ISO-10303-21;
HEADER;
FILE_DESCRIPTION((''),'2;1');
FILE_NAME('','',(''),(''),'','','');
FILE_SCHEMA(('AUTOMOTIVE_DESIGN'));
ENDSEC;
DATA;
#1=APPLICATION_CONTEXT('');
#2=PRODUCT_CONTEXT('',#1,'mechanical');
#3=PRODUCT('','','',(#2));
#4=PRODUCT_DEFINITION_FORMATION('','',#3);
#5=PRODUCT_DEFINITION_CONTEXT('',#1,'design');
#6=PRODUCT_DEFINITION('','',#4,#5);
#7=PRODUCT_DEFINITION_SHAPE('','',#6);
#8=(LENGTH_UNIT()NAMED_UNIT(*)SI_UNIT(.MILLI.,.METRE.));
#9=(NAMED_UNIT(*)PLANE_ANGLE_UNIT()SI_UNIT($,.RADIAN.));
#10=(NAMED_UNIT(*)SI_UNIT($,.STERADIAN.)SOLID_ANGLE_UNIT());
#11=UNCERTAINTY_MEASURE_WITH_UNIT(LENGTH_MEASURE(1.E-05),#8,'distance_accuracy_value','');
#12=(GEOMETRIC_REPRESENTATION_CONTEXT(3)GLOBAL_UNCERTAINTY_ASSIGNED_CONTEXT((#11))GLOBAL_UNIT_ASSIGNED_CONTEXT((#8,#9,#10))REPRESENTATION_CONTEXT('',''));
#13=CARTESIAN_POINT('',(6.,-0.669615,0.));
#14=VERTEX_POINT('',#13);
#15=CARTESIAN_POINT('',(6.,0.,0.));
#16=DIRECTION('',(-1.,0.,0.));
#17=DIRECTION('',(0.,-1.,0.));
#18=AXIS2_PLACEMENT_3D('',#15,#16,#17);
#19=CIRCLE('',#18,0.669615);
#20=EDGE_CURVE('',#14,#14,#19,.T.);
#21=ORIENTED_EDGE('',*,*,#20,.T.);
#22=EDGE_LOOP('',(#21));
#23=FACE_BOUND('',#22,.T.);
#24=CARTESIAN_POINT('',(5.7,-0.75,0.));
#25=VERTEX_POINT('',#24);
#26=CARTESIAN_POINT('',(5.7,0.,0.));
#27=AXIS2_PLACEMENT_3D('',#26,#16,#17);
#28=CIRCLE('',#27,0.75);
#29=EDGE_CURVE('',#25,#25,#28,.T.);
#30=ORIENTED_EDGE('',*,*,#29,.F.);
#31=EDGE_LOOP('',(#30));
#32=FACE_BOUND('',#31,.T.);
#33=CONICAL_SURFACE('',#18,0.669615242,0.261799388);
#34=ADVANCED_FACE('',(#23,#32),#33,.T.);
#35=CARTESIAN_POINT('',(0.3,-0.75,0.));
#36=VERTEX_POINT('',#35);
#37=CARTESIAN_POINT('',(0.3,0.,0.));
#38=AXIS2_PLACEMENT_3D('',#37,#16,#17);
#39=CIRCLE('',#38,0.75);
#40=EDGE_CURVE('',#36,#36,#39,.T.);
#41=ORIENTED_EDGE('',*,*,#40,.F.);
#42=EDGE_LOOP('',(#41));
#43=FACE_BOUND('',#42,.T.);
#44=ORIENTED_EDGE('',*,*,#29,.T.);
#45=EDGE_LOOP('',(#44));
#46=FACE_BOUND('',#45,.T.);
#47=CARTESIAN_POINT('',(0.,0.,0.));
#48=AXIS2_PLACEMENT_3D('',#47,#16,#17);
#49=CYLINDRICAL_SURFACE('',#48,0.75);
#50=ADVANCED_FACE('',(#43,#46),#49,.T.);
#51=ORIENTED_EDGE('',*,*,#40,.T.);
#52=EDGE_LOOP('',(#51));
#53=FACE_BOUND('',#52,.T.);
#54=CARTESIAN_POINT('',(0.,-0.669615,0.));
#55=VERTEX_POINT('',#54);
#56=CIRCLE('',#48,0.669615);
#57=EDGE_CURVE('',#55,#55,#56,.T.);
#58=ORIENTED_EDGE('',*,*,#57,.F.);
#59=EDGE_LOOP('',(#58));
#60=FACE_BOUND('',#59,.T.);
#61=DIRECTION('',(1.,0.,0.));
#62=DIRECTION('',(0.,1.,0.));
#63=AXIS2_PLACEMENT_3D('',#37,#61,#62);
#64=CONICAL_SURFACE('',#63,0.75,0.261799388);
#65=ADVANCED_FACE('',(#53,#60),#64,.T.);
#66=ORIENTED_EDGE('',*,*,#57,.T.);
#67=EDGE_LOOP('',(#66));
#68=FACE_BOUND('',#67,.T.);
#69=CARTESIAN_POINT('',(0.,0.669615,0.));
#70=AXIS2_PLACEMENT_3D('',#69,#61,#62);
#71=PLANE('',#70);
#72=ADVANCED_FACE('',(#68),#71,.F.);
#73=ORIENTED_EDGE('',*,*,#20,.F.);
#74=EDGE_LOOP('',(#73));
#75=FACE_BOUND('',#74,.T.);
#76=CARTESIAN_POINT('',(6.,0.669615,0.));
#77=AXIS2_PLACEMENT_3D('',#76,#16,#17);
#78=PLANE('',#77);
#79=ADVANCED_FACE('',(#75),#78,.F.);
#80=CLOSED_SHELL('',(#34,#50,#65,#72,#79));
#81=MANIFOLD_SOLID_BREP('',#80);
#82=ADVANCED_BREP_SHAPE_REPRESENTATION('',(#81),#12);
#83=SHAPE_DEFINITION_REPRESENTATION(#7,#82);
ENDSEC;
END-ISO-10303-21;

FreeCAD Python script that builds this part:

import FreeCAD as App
import Part
import Sketcher
Q = App.Units.Quantity


def add_polygon(sketch, points):
    """Adds a closed chain of lines whose ends are joined by coincident constraints."""
    first, n = sketch.GeometryCount, len(points)
    for a, b in zip(points, points[1:] + points[:1]):
        sketch.addGeometry(Part.LineSegment(App.Vector(*a, 0), App.Vector(*b, 0)), False)
    for i in range(n):
        sketch.addConstraint(Sketcher.Constraint("Coincident", first + i, 2, first + (i + 1) % n, 1))

doc = App.newDocument("Part")
params = doc.addObject("Spreadsheet::Sheet", "Params")
for row, (alias, value) in enumerate([
    ("sketch1_width", "6 mm"),
    ("sketch1_width2", "5.4 mm"),
    ("revolution_angle", "360 deg"),
], start=1):
    params.set(f"A{row}", alias)
    params.set(f"B{row}", "=" + value)
    params.setAlias(f"B{row}", alias)

body = doc.addObject("PartDesign::Body", "Body")

sketch1 = body.newObject("Sketcher::SketchObject", "Sketch")
sketch1.AttachmentSupport = (doc.getObject("XY_Plane"), [""])
sketch1.MapMode = "FlatFace"
add_polygon(sketch1, [(6, 0), (6, 0.669615), (5.7, 0.75), (0.3, 0.75), (0, 0.669615), (0, 0)])
sketch1.addConstraint([
    Sketcher.Constraint("Vertical", 0),
    Sketcher.Constraint("Horizontal", 2),
    Sketcher.Constraint("Vertical", 4),
    Sketcher.Constraint("Horizontal", 5),
    Sketcher.Constraint("Coincident", 4, 2, -1, 1),
    Sketcher.Constraint("Horizontal", 0, 2, 3, 2),
    Sketcher.Constraint("Equal", 1, 3),
    Sketcher.Constraint("DistanceX", 5, 1, 5, 2, 6.0),
    Sketcher.Constraint("Angle", 1, Q("165 deg")),
    Sketcher.Constraint("DistanceX", 2, 2, 2, 1, 5.4),
    Sketcher.Constraint("DistanceY", -1, 1, 1, 2, 0.75),
])
sketch1.setExpression("Constraints[13]", "Params.sketch1_width")
sketch1.setExpression("Constraints[15]", "Params.sketch1_width2")
revolution = body.newObject("PartDesign::Revolution", "Revolution")
revolution.Profile = sketch1
revolution.ReferenceAxis = (sketch1, ["H_Axis"])
revolution.setExpression("Angle", "Params.revolution_angle")

doc.recompute()
